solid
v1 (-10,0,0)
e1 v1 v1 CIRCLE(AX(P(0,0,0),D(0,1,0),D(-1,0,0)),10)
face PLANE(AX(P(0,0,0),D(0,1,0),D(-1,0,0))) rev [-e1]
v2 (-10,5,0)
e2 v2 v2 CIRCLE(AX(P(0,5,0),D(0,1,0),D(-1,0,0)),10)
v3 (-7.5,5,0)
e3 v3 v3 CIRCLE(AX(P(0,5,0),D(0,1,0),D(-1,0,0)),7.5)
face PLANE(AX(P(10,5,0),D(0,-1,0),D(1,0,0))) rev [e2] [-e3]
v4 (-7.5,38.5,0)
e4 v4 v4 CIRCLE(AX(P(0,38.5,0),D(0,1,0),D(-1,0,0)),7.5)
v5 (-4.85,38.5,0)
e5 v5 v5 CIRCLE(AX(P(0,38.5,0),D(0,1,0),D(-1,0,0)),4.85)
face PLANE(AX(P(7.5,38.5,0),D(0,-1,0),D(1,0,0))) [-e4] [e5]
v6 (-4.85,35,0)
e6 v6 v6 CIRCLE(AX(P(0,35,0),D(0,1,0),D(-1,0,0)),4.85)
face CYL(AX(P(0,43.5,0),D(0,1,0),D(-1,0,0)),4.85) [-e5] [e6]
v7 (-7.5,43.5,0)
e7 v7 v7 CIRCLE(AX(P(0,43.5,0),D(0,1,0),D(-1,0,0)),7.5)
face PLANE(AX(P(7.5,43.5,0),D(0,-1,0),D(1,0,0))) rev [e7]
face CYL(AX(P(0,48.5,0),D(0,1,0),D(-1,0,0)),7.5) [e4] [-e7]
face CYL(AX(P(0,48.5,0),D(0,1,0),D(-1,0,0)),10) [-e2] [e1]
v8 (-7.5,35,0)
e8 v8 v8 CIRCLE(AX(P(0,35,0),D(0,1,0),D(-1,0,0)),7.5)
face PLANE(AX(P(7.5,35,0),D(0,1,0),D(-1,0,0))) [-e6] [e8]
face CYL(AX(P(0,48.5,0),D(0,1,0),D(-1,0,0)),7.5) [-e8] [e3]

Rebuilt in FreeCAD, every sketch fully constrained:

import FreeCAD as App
import Part
import Sketcher

V = App.Vector


def add_polygon(sketch, points):
    """Adds a closed chain of lines whose ends are joined by coincident constraints."""
    first, n = sketch.GeometryCount, len(points)
    for a, b in zip(points, points[1:] + points[:1]):
        sketch.addGeometry(Part.LineSegment(App.Vector(*a, 0), App.Vector(*b, 0)), False)
    for i in range(n):
        sketch.addConstraint(Sketcher.Constraint("Coincident", first + i, 2, first + (i + 1) % n, 1))

doc = App.newDocument("Part")
params = doc.addObject("Spreadsheet::Sheet", "Params")
for row, (alias, value) in enumerate([
    ("sketch1_width", "10 mm"),
    ("sketch1_height", "5 mm"),
    ("sketch1_width2", "2.5 mm"),
    ("sketch1_height2", "38.5 mm"),
    ("revolution_angle", "360 deg"),
    ("sketch2_height", "3.5 mm"),
    ("sketch2_width", "2.65 mm"),
    ("groove_angle", "360 deg"),
], start=1):
    params.set(f"A{row}", alias)
    params.set(f"B{row}", "=" + value)
    params.setAlias(f"B{row}", alias)

body = doc.addObject("PartDesign::Body", "Body")

# Sketch on XY plane
sketch1 = doc.addObject("Sketcher::SketchObject", "Sketch")
body.addObject(sketch1)
sketch1.AttachmentSupport = (doc.XY_Plane, [""])
sketch1.MapMode = "FlatFace"
add_polygon(sketch1, [(0, 0), (10, 0), (10, 5), (7.5, 5), (7.5, 43.5), (0, 43.5)])  # lines 0-5
sketch1.addConstraint([
    Sketcher.Constraint("Horizontal", 0),
    Sketcher.Constraint("Vertical", 1),
    Sketcher.Constraint("Horizontal", 2),
    Sketcher.Constraint("Vertical", 3),
    Sketcher.Constraint("Horizontal", 4),
    Sketcher.Constraint("Vertical", 5),
    Sketcher.Constraint("Coincident", 5, 2, -1, 1),
    Sketcher.Constraint("DistanceX", 0, 1, 0, 2, 10.0),
    Sketcher.Constraint("DistanceY", 1, 1, 1, 2, 5.0),
    Sketcher.Constraint("DistanceX", 2, 2, 2, 1, 2.5),
    Sketcher.Constraint("DistanceY", 3, 1, 3, 2, 38.5),
])
sketch1.setExpression("Constraints[13]", "Params.sketch1_width")
sketch1.setExpression("Constraints[14]", "Params.sketch1_height")
sketch1.setExpression("Constraints[15]", "Params.sketch1_width2")
sketch1.setExpression("Constraints[16]", "Params.sketch1_height2")
revolution = doc.addObject("PartDesign::Revolution", "Revolution")
body.addObject(revolution)
revolution.Profile = sketch1
revolution.ReferenceAxis = (sketch1, ["V_Axis"])
revolution.setExpression("Angle", "Params.revolution_angle")

# Sketch on XY plane
sketch2 = doc.addObject("Sketcher::SketchObject", "Sketch001")
body.addObject(sketch2)
sketch2.AttachmentSupport = (doc.XY_Plane, [""])
sketch2.MapMode = "FlatFace"
add_polygon(sketch2, [(4.8, 38.5), (4.8, 35), (7.5, 35), (7.5, 38.5)])  # lines 0-3
sketch2.addConstraint([
    Sketcher.Constraint("Vertical", 0),
    Sketcher.Constraint("Horizontal", 1),
    Sketcher.Constraint("Vertical", 2),
    Sketcher.Constraint("Horizontal", 3),
    Sketcher.Constraint("DistanceY", 0, 2, 0, 1, 3.5),
    Sketcher.Constraint("DistanceY", -1, 1, 0, 2, 35.0),
    Sketcher.Constraint("DistanceX", 1, 1, 1, 2, 2.65),
    Sketcher.Constraint("DistanceX", -1, 1, 1, 2, 7.5),
])
sketch2.setExpression("Constraints[8]", "Params.sketch2_height")
sketch2.setExpression("Constraints[10]", "Params.sketch2_width")
groove = doc.addObject("PartDesign::Groove", "Groove")
body.addObject(groove)
groove.Profile = sketch2
groove.ReferenceAxis = (sketch2, ["V_Axis"])
groove.setExpression("Angle", "Params.groove_angle")

doc.recompute()
